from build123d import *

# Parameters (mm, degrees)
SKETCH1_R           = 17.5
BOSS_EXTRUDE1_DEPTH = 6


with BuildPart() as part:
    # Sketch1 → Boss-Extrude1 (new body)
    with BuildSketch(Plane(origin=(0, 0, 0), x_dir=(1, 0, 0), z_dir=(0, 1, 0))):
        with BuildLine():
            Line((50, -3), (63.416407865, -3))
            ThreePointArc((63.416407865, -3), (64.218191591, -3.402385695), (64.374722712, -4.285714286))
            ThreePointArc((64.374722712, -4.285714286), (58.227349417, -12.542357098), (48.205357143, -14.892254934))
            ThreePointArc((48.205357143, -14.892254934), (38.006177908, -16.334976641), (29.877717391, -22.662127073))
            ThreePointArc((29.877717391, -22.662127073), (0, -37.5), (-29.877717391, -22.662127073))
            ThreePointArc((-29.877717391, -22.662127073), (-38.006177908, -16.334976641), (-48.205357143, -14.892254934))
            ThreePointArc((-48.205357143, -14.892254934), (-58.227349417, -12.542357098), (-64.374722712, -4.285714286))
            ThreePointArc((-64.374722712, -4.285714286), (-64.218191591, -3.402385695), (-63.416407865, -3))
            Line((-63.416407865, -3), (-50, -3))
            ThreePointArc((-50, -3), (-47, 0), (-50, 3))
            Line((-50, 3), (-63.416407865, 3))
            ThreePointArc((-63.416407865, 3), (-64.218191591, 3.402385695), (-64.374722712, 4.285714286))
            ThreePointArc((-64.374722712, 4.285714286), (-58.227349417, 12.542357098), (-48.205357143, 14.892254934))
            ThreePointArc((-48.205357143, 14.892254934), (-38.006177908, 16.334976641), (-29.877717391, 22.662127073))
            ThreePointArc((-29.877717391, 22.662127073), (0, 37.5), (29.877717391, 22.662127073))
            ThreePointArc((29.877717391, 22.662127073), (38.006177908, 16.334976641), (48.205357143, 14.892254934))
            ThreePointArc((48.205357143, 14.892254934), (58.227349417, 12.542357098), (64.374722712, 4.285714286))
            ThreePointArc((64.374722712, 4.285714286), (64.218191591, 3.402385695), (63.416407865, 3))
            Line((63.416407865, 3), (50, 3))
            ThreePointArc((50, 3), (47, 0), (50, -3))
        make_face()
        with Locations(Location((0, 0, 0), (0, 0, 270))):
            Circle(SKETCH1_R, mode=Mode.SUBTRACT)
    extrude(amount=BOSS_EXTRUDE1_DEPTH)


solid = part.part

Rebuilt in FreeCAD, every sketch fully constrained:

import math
import FreeCAD as App
import Part
import Sketcher
from FreeCAD import Vector
Q = App.Units.Quantity

doc = App.newDocument("Part")
params = doc.addObject("Spreadsheet::Sheet", "Params")
for row, (alias, value) in enumerate([
    ("sketch1_diameter", "35 mm"),
    ("sketch1_radius", "3 mm"),
    ("sketch1_radius2", "1 mm"),
    ("sketch1_radius3", "15 mm"),
    ("sketch1_radius4", "20 mm"),
    ("pad1_length", "6 mm"),
], start=1):
    params.set(f"A{row}", alias)
    params.set(f"B{row}", "=" + value)
    params.setAlias(f"B{row}", alias)

body = doc.addObject("PartDesign::Body", "Body")

sketch1 = body.newObject("Sketcher::SketchObject", "Sketch")
sketch1.AttachmentSupport = (doc.getObject("XZ_Plane"), [""])
sketch1.MapMode = "FlatFace"
sketch1.addGeometry(Part.LineSegment(Vector(63.4, 3, 0), Vector(50, 3, 0)), False)
sketch1.addGeometry(Part.ArcOfCircle(Part.Circle(Vector(50, 0, 0), Vector(0, 0, 1), 3), math.radians(90), math.radians(270)), False)
sketch1.addGeometry(Part.LineSegment(Vector(50, -3, 0), Vector(63.4, -3, 0)), False)
sketch1.addGeometry(Part.ArcOfCircle(Part.Circle(Vector(63.4, -4, 0), Vector(0, 0, 1), 1), math.radians(-17), math.radians(90)), False)
sketch1.addGeometry(Part.ArcOfCircle(Part.Circle(Vector(50, 0, 0), Vector(0, 0, 1), 15), math.radians(-97), math.radians(-17)), False)
sketch1.addGeometry(Part.ArcOfCircle(Part.Circle(Vector(45.8, -34.7, 0), Vector(0, 0, 1), 20), math.radians(83), math.radians(143)), False)
sketch1.addGeometry(Part.ArcOfCircle(Part.Circle(Vector(0, 0, 0), Vector(0, 0, 1), 37.5), math.radians(-143), math.radians(-37)), False)
sketch1.addGeometry(Part.ArcOfCircle(Part.Circle(Vector(-45.8, -34.7, 0), Vector(0, 0, 1), 20), math.radians(37), math.radians(97)), False)
sketch1.addGeometry(Part.ArcOfCircle(Part.Circle(Vector(-50, 0, 0), Vector(0, 0, 1), 15), math.radians(-163), math.radians(-83)), False)
sketch1.addGeometry(Part.ArcOfCircle(Part.Circle(Vector(-63.4, -4, 0), Vector(0, 0, 1), 1), math.radians(90), math.radians(197)), False)
sketch1.addGeometry(Part.LineSegment(Vector(-63.4, -3, 0), Vector(-50, -3, 0)), False)
sketch1.addGeometry(Part.ArcOfCircle(Part.Circle(Vector(-50, 0, 0), Vector(0, 0, 1), 3), math.radians(-90), math.radians(90)), False)
sketch1.addGeometry(Part.LineSegment(Vector(-50, 3, 0), Vector(-63.4, 3, 0)), False)
sketch1.addGeometry(Part.ArcOfCircle(Part.Circle(Vector(-63.4, 4, 0), Vector(0, 0, 1), 1), math.radians(163), math.radians(270)), False)
sketch1.addGeometry(Part.ArcOfCircle(Part.Circle(Vector(-50, 0, 0), Vector(0, 0, 1), 15), math.radians(83), math.radians(163)), False)
sketch1.addGeometry(Part.ArcOfCircle(Part.Circle(Vector(-45.8, 34.7, 0), Vector(0, 0, 1), 20), math.radians(-97), math.radians(-37)), False)
sketch1.addGeometry(Part.ArcOfCircle(Part.Circle(Vector(0, 0, 0), Vector(0, 0, 1), 37.5), math.radians(37), math.radians(143)), False)
sketch1.addGeometry(Part.ArcOfCircle(Part.Circle(Vector(45.8, 34.7, 0), Vector(0, 0, 1), 20), math.radians(-143), math.radians(-83)), False)
sketch1.addGeometry(Part.ArcOfCircle(Part.Circle(Vector(50, 0, 0), Vector(0, 0, 1), 15), math.radians(17), math.radians(97)), False)
sketch1.addGeometry(Part.ArcOfCircle(Part.Circle(Vector(63.4, 4, 0), Vector(0, 0, 1), 1), math.radians(-90), math.radians(17)), False)
sketch1.addGeometry(Part.Circle(Vector(0, 0, 0), Vector(0, 0, 1), 17.5), False)
sketch1.addConstraint(Sketcher.Constraint("Tangent", 0, 2, 1, 1))
sketch1.addConstraint(Sketcher.Constraint("Tangent", 1, 2, 2, 1))
sketch1.addConstraint(Sketcher.Constraint("Tangent", 2, 2, 3, 2))
sketch1.addConstraint(Sketcher.Constraint("Tangent", 3, 1, 4, 2))
sketch1.addConstraint(Sketcher.Constraint("Tangent", 4, 1, 5, 1))
sketch1.addConstraint(Sketcher.Constraint("Tangent", 5, 2, 6, 2))
sketch1.addConstraint(Sketcher.Constraint("Tangent", 6, 1, 7, 1))
sketch1.addConstraint(Sketcher.Constraint("Tangent", 7, 2, 8, 2))
sketch1.addConstraint(Sketcher.Constraint("Tangent", 8, 1, 9, 2))
sketch1.addConstraint(Sketcher.Constraint("Tangent", 9, 1, 10, 1))
sketch1.addConstraint(Sketcher.Constraint("Tangent", 10, 2, 11, 1))
sketch1.addConstraint(Sketcher.Constraint("Tangent", 11, 2, 12, 1))
sketch1.addConstraint(Sketcher.Constraint("Tangent", 12, 2, 13, 2))
sketch1.addConstraint(Sketcher.Constraint("Tangent", 13, 1, 14, 2))
sketch1.addConstraint(Sketcher.Constraint("Tangent", 14, 1, 15, 1))
sketch1.addConstraint(Sketcher.Constraint("Tangent", 15, 2, 16, 2))
sketch1.addConstraint(Sketcher.Constraint("Tangent", 16, 1, 17, 1))
sketch1.addConstraint(Sketcher.Constraint("Tangent", 17, 2, 18, 2))
sketch1.addConstraint(Sketcher.Constraint("Tangent", 18, 1, 19, 2))
sketch1.addConstraint(Sketcher.Constraint("Tangent", 19, 1, 0, 1))
sketch1.addConstraint(Sketcher.Constraint("Horizontal", 0))
sketch1.addConstraint(Sketcher.Constraint("Horizontal", 2))
sketch1.addConstraint(Sketcher.Constraint("Horizontal", 10))
sketch1.addConstraint(Sketcher.Constraint("Horizontal", 12))
sketch1.addConstraint(Sketcher.Constraint("Coincident", 6, 3, -1, 1))
sketch1.addConstraint(Sketcher.Constraint("Coincident", 16, 3, -1, 1))
sketch1.addConstraint(Sketcher.Constraint("Coincident", 20, 3, -1, 1))
sketch1.addConstraint(Sketcher.Constraint("Coincident", 4, 3, 1, 3))
sketch1.addConstraint(Sketcher.Constraint("Coincident", 11, 3, 8, 3))
sketch1.addConstraint(Sketcher.Constraint("Coincident", 14, 3, 8, 3))
sketch1.addConstraint(Sketcher.Constraint("Coincident", 18, 3, 1, 3))
sketch1.addConstraint(Sketcher.Constraint("Equal", 5, 7))
sketch1.addConstraint(Sketcher.Constraint("Equal", 4, 8))
sketch1.addConstraint(Sketcher.Constraint("Equal", 3, 9))
sketch1.addConstraint(Sketcher.Constraint("Equal", 1, 11))
sketch1.addConstraint(Sketcher.Constraint("Equal", 9, 13))
sketch1.addConstraint(Sketcher.Constraint("Equal", 8, 14))
sketch1.addConstraint(Sketcher.Constraint("Equal", 7, 15))
sketch1.addConstraint(Sketcher.Constraint("Equal", 6, 16))
sketch1.addConstraint(Sketcher.Constraint("Equal", 15, 17))
sketch1.addConstraint(Sketcher.Constraint("Equal", 14, 18))
sketch1.addConstraint(Sketcher.Constraint("Equal", 13, 19))
sketch1.addConstraint(Sketcher.Constraint("Symmetric", 1, 3, 8, 3, -1, 1))
sketch1.addConstraint(Sketcher.Constraint("PointOnObject", 1, 3, -1))
sketch1.addConstraint(Sketcher.Constraint("Diameter", 20, Q("35 mm")))
sketch1.addConstraint(Sketcher.Constraint("Radius", 1, Q("3 mm")))
sketch1.addConstraint(Sketcher.Constraint("Radius", 3, Q("1 mm")))
sketch1.addConstraint(Sketcher.Constraint("Radius", 4, Q("15 mm")))
sketch1.addConstraint(Sketcher.Constraint("Radius", 5, Q("20 mm")))
sketch1.addConstraint(Sketcher.Constraint("Radius", 6, Q("37.5 mm")))
sketch1.addConstraint(Sketcher.Constraint("DistanceX", -1, 1, 1, 3, Q("50 mm")))
sketch1.setExpression("Constraints[44]", "Params.sketch1_diameter")
sketch1.setExpression("Constraints[45]", "Params.sketch1_radius")
sketch1.setExpression("Constraints[46]", "Params.sketch1_radius2")
sketch1.setExpression("Constraints[47]", "Params.sketch1_radius3")
sketch1.setExpression("Constraints[48]", "Params.sketch1_radius4")
pad1 = body.newObject("PartDesign::Pad", "Pad")
pad1.Profile = sketch1
pad1.setExpression("Length", "Params.pad1_length")
pad1.Reversed = True

doc.recompute()
